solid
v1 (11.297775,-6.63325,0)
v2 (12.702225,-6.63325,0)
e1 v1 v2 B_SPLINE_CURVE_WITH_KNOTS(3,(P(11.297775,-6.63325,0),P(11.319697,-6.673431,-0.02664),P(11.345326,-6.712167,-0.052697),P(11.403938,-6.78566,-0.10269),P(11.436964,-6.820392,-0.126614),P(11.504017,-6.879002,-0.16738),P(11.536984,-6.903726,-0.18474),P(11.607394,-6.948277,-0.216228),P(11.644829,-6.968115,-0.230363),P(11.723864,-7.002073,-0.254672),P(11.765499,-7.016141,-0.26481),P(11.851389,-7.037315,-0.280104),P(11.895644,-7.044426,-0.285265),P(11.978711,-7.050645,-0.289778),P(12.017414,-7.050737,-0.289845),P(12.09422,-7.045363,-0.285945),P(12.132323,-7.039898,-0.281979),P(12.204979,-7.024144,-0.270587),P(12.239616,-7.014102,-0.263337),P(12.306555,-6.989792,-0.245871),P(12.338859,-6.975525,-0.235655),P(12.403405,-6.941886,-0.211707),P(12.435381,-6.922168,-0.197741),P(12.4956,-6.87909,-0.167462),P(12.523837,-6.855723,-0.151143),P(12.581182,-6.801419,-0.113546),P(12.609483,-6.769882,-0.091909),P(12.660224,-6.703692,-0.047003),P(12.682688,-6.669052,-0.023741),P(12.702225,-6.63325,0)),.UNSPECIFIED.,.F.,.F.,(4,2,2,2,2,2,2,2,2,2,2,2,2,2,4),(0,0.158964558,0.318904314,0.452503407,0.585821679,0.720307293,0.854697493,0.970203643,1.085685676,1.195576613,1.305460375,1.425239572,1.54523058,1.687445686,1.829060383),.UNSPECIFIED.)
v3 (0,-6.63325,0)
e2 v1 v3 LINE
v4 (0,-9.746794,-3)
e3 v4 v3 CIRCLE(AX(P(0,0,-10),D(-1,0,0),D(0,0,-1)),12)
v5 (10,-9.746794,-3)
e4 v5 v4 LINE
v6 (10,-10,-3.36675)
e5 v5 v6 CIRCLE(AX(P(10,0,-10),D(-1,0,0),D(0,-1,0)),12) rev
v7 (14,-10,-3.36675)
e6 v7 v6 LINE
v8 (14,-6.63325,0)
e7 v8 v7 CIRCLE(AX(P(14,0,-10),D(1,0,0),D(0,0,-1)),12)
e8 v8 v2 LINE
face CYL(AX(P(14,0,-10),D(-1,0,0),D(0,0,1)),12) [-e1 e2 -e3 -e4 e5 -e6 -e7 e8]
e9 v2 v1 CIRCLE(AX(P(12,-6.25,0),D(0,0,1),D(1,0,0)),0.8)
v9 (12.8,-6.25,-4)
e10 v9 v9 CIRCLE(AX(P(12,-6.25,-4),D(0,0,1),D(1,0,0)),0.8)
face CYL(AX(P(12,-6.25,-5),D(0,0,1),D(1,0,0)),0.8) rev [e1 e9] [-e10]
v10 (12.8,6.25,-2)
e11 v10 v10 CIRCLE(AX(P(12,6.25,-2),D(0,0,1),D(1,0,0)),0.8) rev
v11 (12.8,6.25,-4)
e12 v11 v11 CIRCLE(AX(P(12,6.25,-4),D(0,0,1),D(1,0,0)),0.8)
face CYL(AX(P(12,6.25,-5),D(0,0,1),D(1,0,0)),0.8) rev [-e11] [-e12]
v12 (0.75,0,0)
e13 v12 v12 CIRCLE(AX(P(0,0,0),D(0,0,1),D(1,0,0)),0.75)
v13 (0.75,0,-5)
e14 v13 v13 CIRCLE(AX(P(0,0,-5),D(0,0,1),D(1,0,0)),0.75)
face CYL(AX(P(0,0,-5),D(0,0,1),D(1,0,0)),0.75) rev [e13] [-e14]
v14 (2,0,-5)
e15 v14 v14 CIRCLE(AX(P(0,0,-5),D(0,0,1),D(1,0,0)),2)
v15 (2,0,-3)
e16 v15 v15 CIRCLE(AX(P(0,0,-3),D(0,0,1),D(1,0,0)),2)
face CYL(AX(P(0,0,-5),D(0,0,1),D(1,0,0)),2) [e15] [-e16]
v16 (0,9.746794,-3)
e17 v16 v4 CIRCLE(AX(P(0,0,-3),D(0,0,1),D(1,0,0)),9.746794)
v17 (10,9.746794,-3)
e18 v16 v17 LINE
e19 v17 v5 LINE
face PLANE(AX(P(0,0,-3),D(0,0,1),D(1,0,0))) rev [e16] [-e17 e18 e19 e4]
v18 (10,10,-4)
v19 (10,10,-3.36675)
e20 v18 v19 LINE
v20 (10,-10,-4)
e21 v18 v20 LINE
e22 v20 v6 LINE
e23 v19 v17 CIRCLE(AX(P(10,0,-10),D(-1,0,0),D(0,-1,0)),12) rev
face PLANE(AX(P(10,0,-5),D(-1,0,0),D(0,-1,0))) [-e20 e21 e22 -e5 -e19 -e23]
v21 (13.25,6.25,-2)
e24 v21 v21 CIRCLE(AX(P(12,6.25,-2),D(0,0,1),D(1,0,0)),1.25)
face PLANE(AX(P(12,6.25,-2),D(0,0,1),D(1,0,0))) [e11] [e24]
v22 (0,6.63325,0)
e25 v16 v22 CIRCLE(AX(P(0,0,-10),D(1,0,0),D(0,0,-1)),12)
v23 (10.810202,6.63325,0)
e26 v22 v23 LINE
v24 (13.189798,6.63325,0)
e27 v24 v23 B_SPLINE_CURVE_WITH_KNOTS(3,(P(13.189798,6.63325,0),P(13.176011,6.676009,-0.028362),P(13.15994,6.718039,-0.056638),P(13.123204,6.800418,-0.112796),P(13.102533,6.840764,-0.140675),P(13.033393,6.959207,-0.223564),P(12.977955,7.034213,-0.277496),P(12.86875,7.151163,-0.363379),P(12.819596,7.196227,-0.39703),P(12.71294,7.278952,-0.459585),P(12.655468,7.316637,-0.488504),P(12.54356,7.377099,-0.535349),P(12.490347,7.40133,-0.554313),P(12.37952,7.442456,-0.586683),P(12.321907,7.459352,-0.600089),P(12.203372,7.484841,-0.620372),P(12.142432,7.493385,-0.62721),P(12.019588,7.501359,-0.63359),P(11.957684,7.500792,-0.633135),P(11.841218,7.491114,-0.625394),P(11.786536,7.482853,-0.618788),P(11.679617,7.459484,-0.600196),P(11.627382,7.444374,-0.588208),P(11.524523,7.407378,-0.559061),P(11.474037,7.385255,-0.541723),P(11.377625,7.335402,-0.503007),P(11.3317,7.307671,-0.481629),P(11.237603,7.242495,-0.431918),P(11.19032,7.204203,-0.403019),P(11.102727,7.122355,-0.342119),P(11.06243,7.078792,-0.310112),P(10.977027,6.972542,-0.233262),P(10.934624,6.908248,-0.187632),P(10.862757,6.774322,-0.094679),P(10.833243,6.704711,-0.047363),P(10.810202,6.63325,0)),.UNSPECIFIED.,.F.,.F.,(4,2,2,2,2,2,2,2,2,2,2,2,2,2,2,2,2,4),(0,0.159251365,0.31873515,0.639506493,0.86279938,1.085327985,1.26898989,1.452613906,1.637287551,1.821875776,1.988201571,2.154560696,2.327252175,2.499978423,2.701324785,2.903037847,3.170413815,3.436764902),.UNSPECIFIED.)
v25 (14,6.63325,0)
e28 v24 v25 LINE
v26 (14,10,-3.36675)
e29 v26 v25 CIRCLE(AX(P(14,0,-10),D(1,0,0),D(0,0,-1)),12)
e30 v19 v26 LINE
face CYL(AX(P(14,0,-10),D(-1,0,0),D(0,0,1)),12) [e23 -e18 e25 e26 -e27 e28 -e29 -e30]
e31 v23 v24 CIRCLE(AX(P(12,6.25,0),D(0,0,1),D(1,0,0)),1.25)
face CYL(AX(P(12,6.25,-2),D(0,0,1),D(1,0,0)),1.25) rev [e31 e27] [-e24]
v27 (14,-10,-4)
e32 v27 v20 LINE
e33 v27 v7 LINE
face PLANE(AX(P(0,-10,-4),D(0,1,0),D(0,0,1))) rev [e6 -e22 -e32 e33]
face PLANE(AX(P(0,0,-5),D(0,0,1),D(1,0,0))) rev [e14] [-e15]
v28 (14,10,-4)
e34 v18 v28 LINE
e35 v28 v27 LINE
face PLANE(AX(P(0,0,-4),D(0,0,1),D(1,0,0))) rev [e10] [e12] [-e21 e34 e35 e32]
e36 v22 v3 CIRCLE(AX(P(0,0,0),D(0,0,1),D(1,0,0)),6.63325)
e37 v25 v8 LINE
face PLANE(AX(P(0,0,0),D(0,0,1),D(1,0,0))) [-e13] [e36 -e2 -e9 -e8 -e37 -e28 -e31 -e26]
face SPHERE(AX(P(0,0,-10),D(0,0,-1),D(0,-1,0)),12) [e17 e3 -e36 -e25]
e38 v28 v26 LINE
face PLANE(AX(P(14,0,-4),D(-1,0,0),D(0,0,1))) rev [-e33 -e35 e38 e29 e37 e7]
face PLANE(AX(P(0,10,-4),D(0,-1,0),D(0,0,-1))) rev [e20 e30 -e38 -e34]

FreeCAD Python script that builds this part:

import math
import FreeCAD as App
import Part
import Sketcher

doc = App.newDocument("Part")
body = doc.addObject("PartDesign::Body", "Body")

# Sketch on XY plane
sketch1 = doc.addObject("Sketcher::SketchObject", "Sketch")
body.addObject(sketch1)
sketch1.AttachmentSupport = (doc.XY_Plane, [""])
sketch1.MapMode = "FlatFace"
sketch1.addGeometry([
    Part.ArcOfCircle(Part.Circle(App.Vector(0, 0, 0), App.Vector(0, 0, 1), 10), math.radians(90), math.radians(270)),
    Part.LineSegment(App.Vector(0, -10, 0), App.Vector(14, -10, 0)),
    Part.LineSegment(App.Vector(14, -10, 0), App.Vector(14, 10, 0)),
    Part.LineSegment(App.Vector(14, 10, 0), App.Vector(0, 10, 0)),
], False)
sketch1.addConstraint([
    Sketcher.Constraint("Tangent", 0, 2, 1, 1),
    Sketcher.Constraint("Coincident", 1, 2, 2, 1),
    Sketcher.Constraint("Coincident", 2, 2, 3, 1),
    Sketcher.Constraint("Tangent", 3, 2, 0, 1),
    Sketcher.Constraint("Horizontal", 1),
    Sketcher.Constraint("Vertical", 2),
    Sketcher.Constraint("Horizontal", 3),
    Sketcher.Constraint("Coincident", 0, 3, -1, 1),
    Sketcher.Constraint("Radius", 0, 10.0),
    Sketcher.Constraint("DistanceX", 1, 1, 1, 2, 14.0),
])
pad1 = doc.addObject("PartDesign::Pad", "Pad")
body.addObject(pad1)
pad1.Profile = sketch1
pad1.Length = 4
pad1.Reversed = True

# Sketch on XY plane
sketch2 = doc.addObject("Sketcher::SketchObject", "Sketch001")
body.addObject(sketch2)
sketch2.AttachmentSupport = (doc.XY_Plane, [""])
sketch2.MapMode = "FlatFace"
sketch2.AttachmentOffset = App.Placement(App.Vector(0, 0, -3), App.Rotation())
sketch2.addGeometry([
    Part.ArcOfCircle(Part.Circle(App.Vector(0, 0, 0), App.Vector(0, 0, 1), 10), math.radians(90), math.radians(270)),
    Part.LineSegment(App.Vector(0, -10, 0), App.Vector(10, -10, 0)),
    Part.LineSegment(App.Vector(10, -10, 0), App.Vector(10, 10, 0)),
    Part.LineSegment(App.Vector(10, 10, 0), App.Vector(0, 10, 0)),
], False)
sketch2.addConstraint([
    Sketcher.Constraint("Tangent", 0, 2, 1, 1),
    Sketcher.Constraint("Coincident", 1, 2, 2, 1),
    Sketcher.Constraint("Coincident", 2, 2, 3, 1),
    Sketcher.Constraint("Tangent", 3, 2, 0, 1),
    Sketcher.Constraint("Horizontal", 1),
    Sketcher.Constraint("Vertical", 2),
    Sketcher.Constraint("Horizontal", 3),
    Sketcher.Constraint("Coincident", 0, 3, -1, 1),
    Sketcher.Constraint("Radius", 0, 10.0),
    Sketcher.Constraint("DistanceX", 1, 1, 1, 2, 10.0),
])
pocket1 = doc.addObject("PartDesign::Pocket", "Pocket")
body.addObject(pocket1)
pocket1.Profile = sketch2
pocket1.Length = 2

# Sketch on XY plane
sketch3 = doc.addObject("Sketcher::SketchObject", "Sketch002")
body.addObject(sketch3)
sketch3.AttachmentSupport = (doc.XY_Plane, [""])
sketch3.MapMode = "FlatFace"
sketch3.AttachmentOffset = App.Placement(App.Vector(0, 0, -3), App.Rotation())
sketch3.addGeometry(Part.Circle(App.Vector(0, 0, 0), App.Vector(0, 0, 1), 2), False)
sketch3.addConstraint([
    Sketcher.Constraint("Coincident", 0, 3, -1, 1),
    Sketcher.Constraint("Diameter", 0, 4.0),
])
pad2 = doc.addObject("PartDesign::Pad", "Pad001")
body.addObject(pad2)
pad2.Profile = sketch3
pad2.Length = 2
pad2.Reversed = True

# Sketch on XY plane
sketch4 = doc.addObject("Sketcher::SketchObject", "Sketch003")
body.addObject(sketch4)
sketch4.AttachmentSupport = (doc.XY_Plane, [""])
sketch4.MapMode = "FlatFace"
sketch4.addGeometry(Part.Circle(App.Vector(0, 0, 0), App.Vector(0, 0, 1), 0.8), False)
sketch4.addConstraint([
    Sketcher.Constraint("Coincident", 0, 3, -1, 1),
    Sketcher.Constraint("Diameter", 0, 1.5),
])
pocket2 = doc.addObject("PartDesign::Pocket", "Pocket001")
body.addObject(pocket2)
pocket2.Profile = sketch4
pocket2.Type = "ThroughAll"

# Sketch on XY plane
sketch5 = doc.addObject("Sketcher::SketchObject", "Sketch004")
body.addObject(sketch5)
sketch5.AttachmentSupport = (doc.XY_Plane, [""])
sketch5.MapMode = "FlatFace"
sketch5.addGeometry([
    Part.Circle(App.Vector(12, 6.2, 0), App.Vector(0, 0, 1), 0.8),
    Part.Circle(App.Vector(12, -6.2, 0), App.Vector(0, 0, 1), 0.8),
], False)
sketch5.addConstraint([
    Sketcher.Constraint("Equal", 0, 1),
    Sketcher.Constraint("Symmetric", 0, 3, 1, 3, -1),
    Sketcher.Constraint("Diameter", 0, 1.6),
    Sketcher.Constraint("DistanceX", -1, 1, 0, 3, 12.0),
    Sketcher.Constraint("DistanceY", 1, 3, 0, 3, 12.5),
])
pocket3 = doc.addObject("PartDesign::Pocket", "Pocket002")
body.addObject(pocket3)
pocket3.Profile = sketch5
pocket3.Type = "ThroughAll"

# Sketch on XY plane
sketch6 = doc.addObject("Sketcher::SketchObject", "Sketch005")
body.addObject(sketch6)
sketch6.AttachmentSupport = (doc.XY_Plane, [""])
sketch6.MapMode = "FlatFace"
sketch6.addGeometry(Part.Circle(App.Vector(12, 6.2, 0), App.Vector(0, 0, 1), 1.2), False)
sketch6.addConstraint([
    Sketcher.Constraint("Diameter", 0, 2.5),
    Sketcher.Constraint("DistanceX", -1, 1, 0, 3, 12.0),
    Sketcher.Constraint("DistanceY", -1, 1, 0, 3, 6.25),
])
pocket4 = doc.addObject("PartDesign::Pocket", "Pocket003")
body.addObject(pocket4)
pocket4.Profile = sketch6
pocket4.Length = 2

# Sketch on YZ plane
sketch7 = doc.addObject("Sketcher::SketchObject", "Sketch006")
body.addObject(sketch7)
sketch7.AttachmentSupport = (doc.YZ_Plane, [""])
sketch7.MapMode = "FlatFace"
sketch7.addGeometry([
    Part.LineSegment(App.Vector(12, 2, 0), App.Vector(2.75, 2, 0)),
    Part.LineSegment(App.Vector(2.75, 2, 0), App.Vector(2.75, 1.68, 0)),
    Part.ArcOfCircle(Part.Circle(App.Vector(0, -10, 0), App.Vector(0, 0, 1), 12), math.radians(0), math.radians(77)),
    Part.LineSegment(App.Vector(12, -10, 0), App.Vector(12, 2, 0)),
], False)
sketch7.addConstraint([
    Sketcher.Constraint("Coincident", 0, 2, 1, 1),
    Sketcher.Constraint("Coincident", 1, 2, 2, 2),
    Sketcher.Constraint("Tangent", 2, 1, 3, 1),
    Sketcher.Constraint("Coincident", 3, 2, 0, 1),
    Sketcher.Constraint("Horizontal", 0),
    Sketcher.Constraint("Vertical", 1),
    Sketcher.Constraint("Vertical", 3),
    Sketcher.Constraint("PointOnObject", 2, 3, -2),
    Sketcher.Constraint("Radius", 2, 12.0),
    Sketcher.Constraint("DistanceY", 3, 1, 3, 2, 12.0),
    Sketcher.Constraint("DistanceY", 2, 3, -1, 1, 10.0),
    Sketcher.Constraint("DistanceX", 0, 2, 0, 1, 9.25),
])
groove = doc.addObject("PartDesign::Groove", "Groove")
body.addObject(groove)
groove.Profile = sketch7
groove.ReferenceAxis = (sketch7, ["V_Axis"])
groove.Angle = 180

# Sketch on YZ plane
sketch8 = doc.addObject("Sketcher::SketchObject", "Sketch007")
body.addObject(sketch8)
sketch8.AttachmentSupport = (doc.YZ_Plane, [""])
sketch8.MapMode = "FlatFace"
sketch8.addGeometry([
    Part.ArcOfCircle(Part.Circle(App.Vector(0, -10, 0), App.Vector(0, 0, 1), 12), math.radians(0), math.radians(90)),  # 0
    Part.LineSegment(App.Vector(12, -10, 0), App.Vector(12, 2, 0)),  # 1
    Part.LineSegment(App.Vector(12, 2, 0), App.Vector(0, 2, 0)),  # 2
    Part.ArcOfCircle(Part.Circle(App.Vector(0, -10, 0), App.Vector(0, 0, 1), 12), math.radians(90), math.radians(180)),  # 3
    Part.LineSegment(App.Vector(0, 2, 0), App.Vector(-12, 2, 0)),  # 4
    Part.LineSegment(App.Vector(-12, 2, 0), App.Vector(-12, -10, 0)),  # 5
], False)
sketch8.addConstraint([
    Sketcher.Constraint("Tangent", 0, 1, 1, 1),
    Sketcher.Constraint("Coincident", 1, 2, 2, 1),
    Sketcher.Constraint("Tangent", 2, 2, 0, 2),
    Sketcher.Constraint("Tangent", 3, 1, 4, 1),
    Sketcher.Constraint("Coincident", 4, 2, 5, 1),
    Sketcher.Constraint("Tangent", 5, 2, 3, 2),
    Sketcher.Constraint("Vertical", 1),
    Sketcher.Constraint("Horizontal", 2),
    Sketcher.Constraint("Horizontal", 4),
    Sketcher.Constraint("Vertical", 5),
    Sketcher.Constraint("Coincident", 3, 3, 0, 3),
    Sketcher.Constraint("Equal", 0, 3),
    Sketcher.Constraint("PointOnObject", 0, 3, -2),
    Sketcher.Constraint("Radius", 0, 12.0),
    Sketcher.Constraint("DistanceY", 0, 3, -1, 1, 10.0),
])
pocket5 = doc.addObject("PartDesign::Pocket", "Pocket004")
body.addObject(pocket5)
pocket5.Profile = sketch8
pocket5.Type = "ThroughAll"
pocket5.Reversed = True

doc.recompute()
